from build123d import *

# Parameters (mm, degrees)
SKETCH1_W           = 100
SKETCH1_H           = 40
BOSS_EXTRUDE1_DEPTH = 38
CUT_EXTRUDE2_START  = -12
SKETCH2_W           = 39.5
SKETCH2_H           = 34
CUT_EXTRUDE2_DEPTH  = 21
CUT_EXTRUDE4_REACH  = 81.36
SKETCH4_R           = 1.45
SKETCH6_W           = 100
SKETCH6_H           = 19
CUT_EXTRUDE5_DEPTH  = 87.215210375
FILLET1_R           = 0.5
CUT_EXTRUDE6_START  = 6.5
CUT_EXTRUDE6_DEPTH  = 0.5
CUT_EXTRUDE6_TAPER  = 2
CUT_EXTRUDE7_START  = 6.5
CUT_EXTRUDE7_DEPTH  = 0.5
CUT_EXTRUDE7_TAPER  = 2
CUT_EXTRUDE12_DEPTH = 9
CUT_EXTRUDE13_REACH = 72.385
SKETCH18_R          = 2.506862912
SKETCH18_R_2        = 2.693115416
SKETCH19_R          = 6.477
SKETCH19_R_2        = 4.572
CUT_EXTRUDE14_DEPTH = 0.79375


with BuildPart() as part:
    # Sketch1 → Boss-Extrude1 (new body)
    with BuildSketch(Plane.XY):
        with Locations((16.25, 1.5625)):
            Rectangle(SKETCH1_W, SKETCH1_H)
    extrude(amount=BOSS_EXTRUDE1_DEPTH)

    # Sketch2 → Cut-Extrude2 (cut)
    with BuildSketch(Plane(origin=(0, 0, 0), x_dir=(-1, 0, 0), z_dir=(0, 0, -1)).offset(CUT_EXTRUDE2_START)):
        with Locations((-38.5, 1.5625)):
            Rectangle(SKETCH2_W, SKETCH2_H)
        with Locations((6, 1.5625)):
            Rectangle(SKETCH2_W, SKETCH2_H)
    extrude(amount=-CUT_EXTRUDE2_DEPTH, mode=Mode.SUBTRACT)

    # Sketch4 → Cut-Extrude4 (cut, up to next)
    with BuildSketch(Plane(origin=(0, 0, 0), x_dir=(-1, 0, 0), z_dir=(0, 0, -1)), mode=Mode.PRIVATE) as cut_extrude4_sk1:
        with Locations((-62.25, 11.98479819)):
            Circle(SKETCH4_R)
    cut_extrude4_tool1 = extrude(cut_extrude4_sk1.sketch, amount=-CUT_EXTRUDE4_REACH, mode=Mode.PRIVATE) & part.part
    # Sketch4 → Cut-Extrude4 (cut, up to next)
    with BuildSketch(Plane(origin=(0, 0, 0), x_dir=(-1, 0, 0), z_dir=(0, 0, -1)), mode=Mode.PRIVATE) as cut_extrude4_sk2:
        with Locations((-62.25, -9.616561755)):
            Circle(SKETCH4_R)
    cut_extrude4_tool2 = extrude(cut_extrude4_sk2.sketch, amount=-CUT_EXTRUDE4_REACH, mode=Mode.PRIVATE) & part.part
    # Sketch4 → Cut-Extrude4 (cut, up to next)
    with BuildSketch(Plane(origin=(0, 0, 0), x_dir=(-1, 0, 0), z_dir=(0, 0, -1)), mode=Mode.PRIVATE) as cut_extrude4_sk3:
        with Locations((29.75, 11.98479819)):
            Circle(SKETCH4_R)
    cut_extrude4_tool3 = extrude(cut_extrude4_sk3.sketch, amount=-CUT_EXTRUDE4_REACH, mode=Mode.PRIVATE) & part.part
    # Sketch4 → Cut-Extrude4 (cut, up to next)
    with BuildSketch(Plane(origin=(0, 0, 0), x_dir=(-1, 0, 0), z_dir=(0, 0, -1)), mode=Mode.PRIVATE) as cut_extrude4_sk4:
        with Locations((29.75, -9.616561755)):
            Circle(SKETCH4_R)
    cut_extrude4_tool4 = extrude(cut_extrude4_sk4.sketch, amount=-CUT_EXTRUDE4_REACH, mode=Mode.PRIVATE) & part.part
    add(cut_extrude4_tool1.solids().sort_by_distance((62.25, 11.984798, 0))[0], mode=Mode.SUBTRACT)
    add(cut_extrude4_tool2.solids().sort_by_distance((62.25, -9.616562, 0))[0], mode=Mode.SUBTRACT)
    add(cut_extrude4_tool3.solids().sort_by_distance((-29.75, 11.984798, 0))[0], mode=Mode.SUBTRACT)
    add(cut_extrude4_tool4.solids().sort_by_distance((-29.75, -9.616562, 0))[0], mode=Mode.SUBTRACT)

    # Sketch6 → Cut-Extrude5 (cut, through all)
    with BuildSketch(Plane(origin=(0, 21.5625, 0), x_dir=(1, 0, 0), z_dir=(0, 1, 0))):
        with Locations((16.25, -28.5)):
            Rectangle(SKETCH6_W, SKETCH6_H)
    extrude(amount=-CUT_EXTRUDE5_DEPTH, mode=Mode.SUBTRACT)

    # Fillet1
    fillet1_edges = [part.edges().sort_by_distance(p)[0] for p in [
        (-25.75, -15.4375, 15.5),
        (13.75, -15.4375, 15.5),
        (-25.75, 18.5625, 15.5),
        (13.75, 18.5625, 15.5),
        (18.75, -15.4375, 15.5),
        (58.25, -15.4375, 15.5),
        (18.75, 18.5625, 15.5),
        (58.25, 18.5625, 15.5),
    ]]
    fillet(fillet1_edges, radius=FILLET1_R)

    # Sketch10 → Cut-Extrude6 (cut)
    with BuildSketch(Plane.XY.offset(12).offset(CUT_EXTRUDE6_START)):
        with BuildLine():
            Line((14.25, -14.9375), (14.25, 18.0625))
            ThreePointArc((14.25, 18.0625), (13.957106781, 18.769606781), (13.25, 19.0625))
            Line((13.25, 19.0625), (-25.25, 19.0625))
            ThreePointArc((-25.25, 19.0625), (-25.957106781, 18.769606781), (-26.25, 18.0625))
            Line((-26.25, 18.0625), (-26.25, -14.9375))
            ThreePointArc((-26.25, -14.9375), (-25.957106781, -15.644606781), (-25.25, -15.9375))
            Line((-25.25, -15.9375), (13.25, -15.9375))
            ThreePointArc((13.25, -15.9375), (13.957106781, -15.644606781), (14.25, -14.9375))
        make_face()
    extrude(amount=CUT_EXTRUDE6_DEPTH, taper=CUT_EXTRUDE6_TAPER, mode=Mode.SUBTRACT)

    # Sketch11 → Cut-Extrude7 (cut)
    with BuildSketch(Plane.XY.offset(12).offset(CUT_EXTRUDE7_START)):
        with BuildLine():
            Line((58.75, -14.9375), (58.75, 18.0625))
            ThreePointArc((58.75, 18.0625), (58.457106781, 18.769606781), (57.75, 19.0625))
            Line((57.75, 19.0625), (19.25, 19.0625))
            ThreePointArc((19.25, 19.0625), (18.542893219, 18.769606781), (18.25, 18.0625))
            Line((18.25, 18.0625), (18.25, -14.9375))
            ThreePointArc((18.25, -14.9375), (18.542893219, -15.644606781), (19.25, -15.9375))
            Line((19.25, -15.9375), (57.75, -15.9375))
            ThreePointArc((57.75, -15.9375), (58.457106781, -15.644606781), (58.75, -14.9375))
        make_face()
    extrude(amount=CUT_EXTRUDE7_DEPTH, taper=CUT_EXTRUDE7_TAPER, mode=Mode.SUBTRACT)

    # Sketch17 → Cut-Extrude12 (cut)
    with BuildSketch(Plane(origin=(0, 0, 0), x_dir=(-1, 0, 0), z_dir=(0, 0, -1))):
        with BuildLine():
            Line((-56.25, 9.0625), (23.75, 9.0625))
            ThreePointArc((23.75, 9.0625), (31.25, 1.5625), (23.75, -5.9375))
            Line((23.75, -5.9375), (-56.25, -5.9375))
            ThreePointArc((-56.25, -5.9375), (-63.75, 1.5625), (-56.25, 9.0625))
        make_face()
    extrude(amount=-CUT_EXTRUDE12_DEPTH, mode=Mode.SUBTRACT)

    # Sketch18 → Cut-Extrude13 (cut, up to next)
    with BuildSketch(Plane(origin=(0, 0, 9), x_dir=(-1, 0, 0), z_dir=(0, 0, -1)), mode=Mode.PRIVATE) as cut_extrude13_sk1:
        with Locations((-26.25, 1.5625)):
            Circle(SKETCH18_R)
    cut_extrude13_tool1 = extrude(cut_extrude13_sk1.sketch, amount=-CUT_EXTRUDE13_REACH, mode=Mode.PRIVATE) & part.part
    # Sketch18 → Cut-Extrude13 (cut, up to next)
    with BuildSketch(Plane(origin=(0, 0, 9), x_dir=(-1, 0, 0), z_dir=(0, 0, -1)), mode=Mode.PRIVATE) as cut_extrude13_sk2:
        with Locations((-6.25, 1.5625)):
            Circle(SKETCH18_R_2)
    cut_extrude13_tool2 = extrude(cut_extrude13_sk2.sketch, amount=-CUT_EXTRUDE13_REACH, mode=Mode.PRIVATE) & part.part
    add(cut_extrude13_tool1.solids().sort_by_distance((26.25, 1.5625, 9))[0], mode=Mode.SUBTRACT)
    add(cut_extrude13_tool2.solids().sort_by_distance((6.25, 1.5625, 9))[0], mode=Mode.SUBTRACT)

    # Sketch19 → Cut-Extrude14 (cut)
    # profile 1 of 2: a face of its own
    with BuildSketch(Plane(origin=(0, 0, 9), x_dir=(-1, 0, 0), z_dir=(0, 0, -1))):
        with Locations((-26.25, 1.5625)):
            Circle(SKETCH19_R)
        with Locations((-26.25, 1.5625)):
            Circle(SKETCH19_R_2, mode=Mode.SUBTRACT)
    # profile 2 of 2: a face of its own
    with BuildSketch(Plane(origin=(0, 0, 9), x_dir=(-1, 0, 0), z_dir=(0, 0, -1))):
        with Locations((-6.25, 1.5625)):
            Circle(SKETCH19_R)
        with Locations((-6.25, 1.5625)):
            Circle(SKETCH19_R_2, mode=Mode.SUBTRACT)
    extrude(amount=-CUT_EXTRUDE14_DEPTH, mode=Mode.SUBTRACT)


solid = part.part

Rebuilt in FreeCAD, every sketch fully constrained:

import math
import FreeCAD as App
import Part
import Sketcher
from FreeCAD import Vector
Q = App.Units.Quantity


def edges_at(feature, points):
    """Names of the edges that pass closest to the given points."""
    edges = feature.Shape.Edges
    near = lambda p: min(range(len(edges)), key=lambda i: edges[i].distToShape(Part.Vertex(*p))[0])
    return sorted({f"Edge{near(p) + 1}" for p in points})


def add_polygon(sketch, points):
    """Adds a closed chain of lines whose ends are joined by coincident constraints."""
    first, n = sketch.GeometryCount, len(points)
    for a, b in zip(points, points[1:] + points[:1]):
        sketch.addGeometry(Part.LineSegment(App.Vector(*a, 0), App.Vector(*b, 0)), False)
    for i in range(n):
        sketch.addConstraint(Sketcher.Constraint("Coincident", first + i, 2, first + (i + 1) % n, 1))

doc = App.newDocument("Part")
params = doc.addObject("Spreadsheet::Sheet", "Params")
for row, (alias, value) in enumerate([
    ("sketch1_width", "100 mm"),
    ("sketch1_height", "40 mm"),
    ("pad1_length", "38 mm"),
    ("sketch2_height", "34 mm"),
    ("sketch2_width", "39.5 mm"),
    ("pocket1_length", "21 mm"),
    ("sketch3_diameter", "2.9 mm"),
    ("sketch4_diameter", "2.9 mm"),
    ("sketch5_diameter", "2.9 mm"),
    ("sketch6_diameter", "2.9 mm"),
    ("sketch7_width", "100 mm"),
    ("sketch7_height", "19 mm"),
    ("fillet_radius", "0.5 mm"),
    ("sketch8_radius", "1 mm"),
    ("sketch8_height", "33 mm"),
    ("sketch8_width", "38.5 mm"),
    ("pocket7_length", "0.5 mm"),
    ("pocket7_taper", "-2 deg"),
    ("sketch9_radius", "1 mm"),
    ("sketch9_height", "33 mm"),
    ("sketch9_width", "38.5 mm"),
    ("pocket8_length", "0.5 mm"),
    ("pocket8_taper", "-2 deg"),
    ("sketch10_radius", "7.5 mm"),
    ("sketch10_width", "80 mm"),
    ("pocket9_length", "9 mm"),
    ("pocket12_length", "0.79375 mm"),
], start=1):
    params.set(f"A{row}", alias)
    params.set(f"B{row}", "=" + value)
    params.setAlias(f"B{row}", alias)

body = doc.addObject("PartDesign::Body", "Body")

# Sketch on XY plane
sketch1 = body.newObject("Sketcher::SketchObject", "Sketch")
sketch1.AttachmentSupport = (doc.getObject("XY_Plane"), [""])
sketch1.MapMode = "FlatFace"
add_polygon(sketch1, [(-34, 22), (-34, -18), (66, -18), (66, 22)])  # lines 0-3
sketch1.addConstraint([
    Sketcher.Constraint("Vertical", 0),
    Sketcher.Constraint("Horizontal", 1),
    Sketcher.Constraint("Vertical", 2),
    Sketcher.Constraint("Horizontal", 3),
    Sketcher.Constraint("DistanceX", 1, 1, 1, 2, Q("100 mm")),
    Sketcher.Constraint("DistanceY", 0, 2, 0, 1, Q("40 mm")),
    Sketcher.Constraint("DistanceX", 0, 2, -1, 1, Q("33.75 mm")),
    Sketcher.Constraint("DistanceY", 0, 2, -1, 1, Q("18.4375 mm")),
])
sketch1.setExpression("Constraints[8]", "Params.sketch1_width")
sketch1.setExpression("Constraints[9]", "Params.sketch1_height")
pad1 = body.newObject("PartDesign::Pad", "Pad")
pad1.Profile = sketch1
pad1.setExpression("Length", "Params.pad1_length")

# Sketch on XY plane
sketch2 = body.newObject("Sketcher::SketchObject", "Sketch001")
sketch2.AttachmentSupport = (doc.getObject("XY_Plane"), [""])
sketch2.MapMode = "FlatFace"
sketch2.AttachmentOffset = App.Placement(Vector(0, 0, 12), App.Rotation())
add_polygon(sketch2, [(58, 19), (58, -15), (19, -15), (19, 19)])  # lines 0-3
add_polygon(sketch2, [(14, 19), (14, -15), (-26, -15), (-26, 19)])  # lines 4-7
sketch2.addConstraint([
    Sketcher.Constraint("Vertical", 0),
    Sketcher.Constraint("Horizontal", 1),
    Sketcher.Constraint("Vertical", 2),
    Sketcher.Constraint("Horizontal", 3),
    Sketcher.Constraint("Vertical", 4),
    Sketcher.Constraint("Horizontal", 5),
    Sketcher.Constraint("Vertical", 6),
    Sketcher.Constraint("Horizontal", 7),
    Sketcher.Constraint("Horizontal", 1, 2, 4, 2),
    Sketcher.Constraint("Horizontal", 3, 2, 6, 2),
    Sketcher.Constraint("Equal", 3, 5),
    Sketcher.Constraint("DistanceY", 0, 2, 0, 1, Q("34 mm")),
    Sketcher.Constraint("DistanceX", 1, 2, 1, 1, Q("39.5 mm")),
    Sketcher.Constraint("DistanceX", 4, 2, 1, 2, Q("5 mm")),
    Sketcher.Constraint("DistanceX", -1, 1, 0, 2, Q("58.25 mm")),
    Sketcher.Constraint("DistanceY", 0, 2, -1, 1, Q("15.4375 mm")),
])
sketch2.setExpression("Constraints[19]", "Params.sketch2_height")
sketch2.setExpression("Constraints[20]", "Params.sketch2_width")
pocket1 = body.newObject("PartDesign::Pocket", "Pocket")
pocket1.Profile = sketch2
pocket1.setExpression("Length", "Params.pocket1_length")
pocket1.Reversed = True

# Sketch on XY plane
sketch3 = body.newObject("Sketcher::SketchObject", "Sketch002")
sketch3.AttachmentSupport = (doc.getObject("XY_Plane"), [""])
sketch3.MapMode = "FlatFace"
sketch3.addGeometry(Part.Circle(Vector(62.2, 12, 0), Vector(0, 0, 1), 1.4), False)
sketch3.addConstraint([
    Sketcher.Constraint("Diameter", 0, Q("2.9 mm")),
    Sketcher.Constraint("DistanceX", -1, 1, 0, 3, Q("62.25 mm")),
    Sketcher.Constraint("DistanceY", -1, 1, 0, 3, Q("11.984798 mm")),
])
sketch3.setExpression("Constraints[0]", "Params.sketch3_diameter")
pocket2 = body.newObject("PartDesign::Pocket", "Pocket001")
pocket2.Profile = sketch3
pocket2.Type = "UpToFirst"
pocket2.Reversed = True

# Sketch on XY plane
sketch4 = body.newObject("Sketcher::SketchObject", "Sketch003")
sketch4.AttachmentSupport = (doc.getObject("XY_Plane"), [""])
sketch4.MapMode = "FlatFace"
sketch4.addGeometry(Part.Circle(Vector(62.2, -9.6, 0), Vector(0, 0, 1), 1.4), False)
sketch4.addConstraint([
    Sketcher.Constraint("Diameter", 0, Q("2.9 mm")),
    Sketcher.Constraint("DistanceX", -1, 1, 0, 3, Q("62.25 mm")),
    Sketcher.Constraint("DistanceY", 0, 3, -1, 1, Q("9.616562 mm")),
])
sketch4.setExpression("Constraints[0]", "Params.sketch4_diameter")
pocket3 = body.newObject("PartDesign::Pocket", "Pocket002")
pocket3.Profile = sketch4
pocket3.Type = "UpToFirst"
pocket3.Reversed = True

# Sketch on XY plane
sketch5 = body.newObject("Sketcher::SketchObject", "Sketch004")
sketch5.AttachmentSupport = (doc.getObject("XY_Plane"), [""])
sketch5.MapMode = "FlatFace"
sketch5.addGeometry(Part.Circle(Vector(-29.8, 12, 0), Vector(0, 0, 1), 1.4), False)
sketch5.addConstraint([
    Sketcher.Constraint("Diameter", 0, Q("2.9 mm")),
    Sketcher.Constraint("DistanceX", 0, 3, -1, 1, Q("29.75 mm")),
    Sketcher.Constraint("DistanceY", -1, 1, 0, 3, Q("11.984798 mm")),
])
sketch5.setExpression("Constraints[0]", "Params.sketch5_diameter")
pocket4 = body.newObject("PartDesign::Pocket", "Pocket003")
pocket4.Profile = sketch5
pocket4.Type = "UpToFirst"
pocket4.Reversed = True

# Sketch on XY plane
sketch6 = body.newObject("Sketcher::SketchObject", "Sketch005")
sketch6.AttachmentSupport = (doc.getObject("XY_Plane"), [""])
sketch6.MapMode = "FlatFace"
sketch6.addGeometry(Part.Circle(Vector(-29.8, -9.6, 0), Vector(0, 0, 1), 1.4), False)
sketch6.addConstraint([
    Sketcher.Constraint("Diameter", 0, Q("2.9 mm")),
    Sketcher.Constraint("DistanceX", 0, 3, -1, 1, Q("29.75 mm")),
    Sketcher.Constraint("DistanceY", 0, 3, -1, 1, Q("9.616562 mm")),
])
sketch6.setExpression("Constraints[0]", "Params.sketch6_diameter")
pocket5 = body.newObject("PartDesign::Pocket", "Pocket004")
pocket5.Profile = sketch6
pocket5.Type = "UpToFirst"
pocket5.Reversed = True

# Sketch on XZ plane
sketch7 = body.newObject("Sketcher::SketchObject", "Sketch006")
sketch7.AttachmentSupport = (doc.getObject("XZ_Plane"), [""])
sketch7.MapMode = "FlatFace"
sketch7.AttachmentOffset = App.Placement(Vector(0, 0, -21.5625), App.Rotation())
add_polygon(sketch7, [(-34, 19), (-34, 38), (66, 38), (66, 19)])  # lines 0-3
sketch7.addConstraint([
    Sketcher.Constraint("Vertical", 0),
    Sketcher.Constraint("Horizontal", 1),
    Sketcher.Constraint("Vertical", 2),
    Sketcher.Constraint("Horizontal", 3),
    Sketcher.Constraint("DistanceX", 1, 1, 1, 2, Q("100 mm")),
    Sketcher.Constraint("DistanceY", 0, 1, 0, 2, Q("19 mm")),
    Sketcher.Constraint("DistanceY", -1, 1, 0, 2, Q("38 mm")),
    Sketcher.Constraint("DistanceX", 0, 2, -1, 1, Q("33.75 mm")),
])
sketch7.setExpression("Constraints[8]", "Params.sketch7_width")
sketch7.setExpression("Constraints[9]", "Params.sketch7_height")
pocket6 = body.newObject("PartDesign::Pocket", "Pocket005")
pocket6.Profile = sketch7
pocket6.Type = "ThroughAll"
pocket6.Reversed = True
doc.recompute()

fillet = body.newObject("PartDesign::Fillet", "Fillet")
fillet.Base = (pocket6, edges_at(pocket6, [
    (-25.75, -15.438, 15.5),
    (13.75, -15.438, 15.5),
    (-25.75, 18.562, 15.5),
    (13.75, 18.562, 15.5),
    (18.75, -15.438, 15.5),
    (58.25, -15.438, 15.5),
    (18.75, 18.562, 15.5),
    (58.25, 18.562, 15.5),
]))
fillet.setExpression("Radius", "Params.fillet_radius")

# Sketch on XY plane
sketch8 = body.newObject("Sketcher::SketchObject", "Sketch007")
sketch8.AttachmentSupport = (doc.getObject("XY_Plane"), [""])
sketch8.MapMode = "FlatFace"
sketch8.AttachmentOffset = App.Placement(Vector(0, 0, 18.5), App.Rotation())
sketch8.addGeometry([
    Part.LineSegment(Vector(14.2, -14.9, 0), Vector(14.2, 18.1, 0)),  # 0
    Part.ArcOfCircle(Part.Circle(Vector(13.2, 18.1, 0), Vector(0, 0, 1), 1), math.radians(0), math.radians(90)),  # 1
    Part.LineSegment(Vector(13.2, 19.1, 0), Vector(-25.2, 19.1, 0)),  # 2
    Part.ArcOfCircle(Part.Circle(Vector(-25.2, 18.1, 0), Vector(0, 0, 1), 1), math.radians(90), math.radians(180)),  # 3
    Part.LineSegment(Vector(-26.2, 18.1, 0), Vector(-26.2, -14.9, 0)),  # 4
    Part.ArcOfCircle(Part.Circle(Vector(-25.2, -14.9, 0), Vector(0, 0, 1), 1), math.radians(-180), math.radians(-90)),  # 5
    Part.LineSegment(Vector(-25.2, -15.9, 0), Vector(13.2, -15.9, 0)),  # 6
    Part.ArcOfCircle(Part.Circle(Vector(13.2, -14.9, 0), Vector(0, 0, 1), 1), math.radians(-90), math.radians(0)),  # 7
], False)
sketch8.addConstraint([
    Sketcher.Constraint("Tangent", 0, 2, 1, 1),
    Sketcher.Constraint("Tangent", 1, 2, 2, 1),
    Sketcher.Constraint("Tangent", 2, 2, 3, 1),
    Sketcher.Constraint("Tangent", 3, 2, 4, 1),
    Sketcher.Constraint("Tangent", 4, 2, 5, 1),
    Sketcher.Constraint("Tangent", 5, 2, 6, 1),
    Sketcher.Constraint("Tangent", 6, 2, 7, 1),
    Sketcher.Constraint("Tangent", 7, 2, 0, 1),
    Sketcher.Constraint("Vertical", 0),
    Sketcher.Constraint("Horizontal", 2),
    Sketcher.Constraint("Vertical", 4),
    Sketcher.Constraint("Horizontal", 6),
    Sketcher.Constraint("Equal", 1, 3),
    Sketcher.Constraint("Equal", 3, 5),
    Sketcher.Constraint("Equal", 5, 7),
    Sketcher.Constraint("Radius", 1, Q("1 mm")),
    Sketcher.Constraint("DistanceY", 0, 1, 0, 2, Q("33 mm")),
    Sketcher.Constraint("DistanceX", 2, 2, 2, 1, Q("38.5 mm")),
    Sketcher.Constraint("DistanceX", -1, 1, 1, 3, Q("13.25 mm")),
    Sketcher.Constraint("DistanceY", -1, 1, 1, 3, Q("18.0625 mm")),
])
sketch8.setExpression("Constraints[15]", "Params.sketch8_radius")
sketch8.setExpression("Constraints[16]", "Params.sketch8_height")
sketch8.setExpression("Constraints[17]", "Params.sketch8_width")
pocket7 = body.newObject("PartDesign::Pocket", "Pocket006")
pocket7.Profile = sketch8
pocket7.setExpression("Length", "Params.pocket7_length")
pocket7.Reversed = True
pocket7.setExpression("TaperAngle", "Params.pocket7_taper")

# Sketch on XY plane
sketch9 = body.newObject("Sketcher::SketchObject", "Sketch008")
sketch9.AttachmentSupport = (doc.getObject("XY_Plane"), [""])
sketch9.MapMode = "FlatFace"
sketch9.AttachmentOffset = App.Placement(Vector(0, 0, 18.5), App.Rotation())
sketch9.addGeometry([
    Part.LineSegment(Vector(58.8, -14.9, 0), Vector(58.8, 18.1, 0)),  # 0
    Part.ArcOfCircle(Part.Circle(Vector(57.7, 18.1, 0), Vector(0, 0, 1), 1), math.radians(0), math.radians(90)),  # 1
    Part.LineSegment(Vector(57.8, 19.1, 0), Vector(19.2, 19.1, 0)),  # 2
    Part.ArcOfCircle(Part.Circle(Vector(19.3, 18.1, 0), Vector(0, 0, 1), 1), math.radians(90), math.radians(180)),  # 3
    Part.LineSegment(Vector(18.2, 18.1, 0), Vector(18.2, -14.9, 0)),  # 4
    Part.ArcOfCircle(Part.Circle(Vector(19.3, -14.9, 0), Vector(0, 0, 1), 1), math.radians(-180), math.radians(-90)),  # 5
    Part.LineSegment(Vector(19.2, -15.9, 0), Vector(57.8, -15.9, 0)),  # 6
    Part.ArcOfCircle(Part.Circle(Vector(57.7, -14.9, 0), Vector(0, 0, 1), 1), math.radians(-90), math.radians(0)),  # 7
], False)
sketch9.addConstraint([
    Sketcher.Constraint("Tangent", 0, 2, 1, 1),
    Sketcher.Constraint("Tangent", 1, 2, 2, 1),
    Sketcher.Constraint("Tangent", 2, 2, 3, 1),
    Sketcher.Constraint("Tangent", 3, 2, 4, 1),
    Sketcher.Constraint("Tangent", 4, 2, 5, 1),
    Sketcher.Constraint("Tangent", 5, 2, 6, 1),
    Sketcher.Constraint("Tangent", 6, 2, 7, 1),
    Sketcher.Constraint("Tangent", 7, 2, 0, 1),
    Sketcher.Constraint("Vertical", 0),
    Sketcher.Constraint("Horizontal", 2),
    Sketcher.Constraint("Vertical", 4),
    Sketcher.Constraint("Horizontal", 6),
    Sketcher.Constraint("Equal", 1, 3),
    Sketcher.Constraint("Equal", 3, 5),
    Sketcher.Constraint("Equal", 5, 7),
    Sketcher.Constraint("Radius", 1, Q("1 mm")),
    Sketcher.Constraint("DistanceY", 0, 1, 0, 2, Q("33 mm")),
    Sketcher.Constraint("DistanceX", 2, 2, 2, 1, Q("38.5 mm")),
    Sketcher.Constraint("DistanceX", -1, 1, 1, 3, Q("57.75 mm")),
    Sketcher.Constraint("DistanceY", -1, 1, 1, 3, Q("18.0625 mm")),
])
sketch9.setExpression("Constraints[15]", "Params.sketch9_radius")
sketch9.setExpression("Constraints[16]", "Params.sketch9_height")
sketch9.setExpression("Constraints[17]", "Params.sketch9_width")
pocket8 = body.newObject("PartDesign::Pocket", "Pocket007")
pocket8.Profile = sketch9
pocket8.setExpression("Length", "Params.pocket8_length")
pocket8.Reversed = True
pocket8.setExpression("TaperAngle", "Params.pocket8_taper")

# Sketch on XY plane
sketch10 = body.newObject("Sketcher::SketchObject", "Sketch009")
sketch10.AttachmentSupport = (doc.getObject("XY_Plane"), [""])
sketch10.MapMode = "FlatFace"
sketch10.addGeometry([
    Part.LineSegment(Vector(-24, 9, 0), Vector(56, 9, 0)),
    Part.ArcOfCircle(Part.Circle(Vector(56, 2, 0), Vector(0, 0, 1), 8), math.radians(-90), math.radians(90)),
    Part.LineSegment(Vector(56, -6, 0), Vector(-24, -6, 0)),
    Part.ArcOfCircle(Part.Circle(Vector(-24, 2, 0), Vector(0, 0, 1), 8), math.radians(90), math.radians(270)),
], False)
sketch10.addConstraint([
    Sketcher.Constraint("Tangent", 0, 2, 1, 2),
    Sketcher.Constraint("Tangent", 1, 1, 2, 1),
    Sketcher.Constraint("Tangent", 2, 2, 3, 2),
    Sketcher.Constraint("Tangent", 3, 1, 0, 1),
    Sketcher.Constraint("Horizontal", 0),
    Sketcher.Constraint("Horizontal", 2),
    Sketcher.Constraint("Radius", 1, Q("7.5 mm")),
    Sketcher.Constraint("DistanceX", 0, 1, 0, 2, Q("80 mm")),
    Sketcher.Constraint("DistanceX", -1, 1, 1, 3, Q("56.25 mm")),
    Sketcher.Constraint("DistanceY", -1, 1, 1, 3, Q("1.5625 mm")),
])
sketch10.setExpression("Constraints[6]", "Params.sketch10_radius")
sketch10.setExpression("Constraints[7]", "Params.sketch10_width")
pocket9 = body.newObject("PartDesign::Pocket", "Pocket008")
pocket9.Profile = sketch10
pocket9.setExpression("Length", "Params.pocket9_length")
pocket9.Reversed = True

# Sketch on XY plane
sketch11 = body.newObject("Sketcher::SketchObject", "Sketch010")
sketch11.AttachmentSupport = (doc.getObject("XY_Plane"), [""])
sketch11.MapMode = "FlatFace"
sketch11.AttachmentOffset = App.Placement(Vector(0, 0, 9), App.Rotation())
sketch11.addGeometry(Part.Circle(Vector(26.2, 1.6, 0), Vector(0, 0, 1), 2.5), False)
sketch11.addConstraint([
    Sketcher.Constraint("DistanceX", -1, 1, 0, 3, Q("26.25 mm")),
    Sketcher.Constraint("Diameter", 0, Q("5.013726 mm")),
    Sketcher.Constraint("DistanceY", -1, 1, 0, 3, Q("1.5625 mm")),
])
pocket10 = body.newObject("PartDesign::Pocket", "Pocket009")
pocket10.Profile = sketch11
pocket10.Type = "UpToFirst"
pocket10.Reversed = True

# Sketch on XY plane
sketch12 = body.newObject("Sketcher::SketchObject", "Sketch011")
sketch12.AttachmentSupport = (doc.getObject("XY_Plane"), [""])
sketch12.MapMode = "FlatFace"
sketch12.AttachmentOffset = App.Placement(Vector(0, 0, 9), App.Rotation())
sketch12.addGeometry(Part.Circle(Vector(6.2, 1.6, 0), Vector(0, 0, 1), 2.7), False)
sketch12.addConstraint([
    Sketcher.Constraint("Diameter", 0, Q("5.386231 mm")),
    Sketcher.Constraint("DistanceX", -1, 1, 0, 3, Q("6.25 mm")),
    Sketcher.Constraint("DistanceY", -1, 1, 0, 3, Q("1.5625 mm")),
])
pocket11 = body.newObject("PartDesign::Pocket", "Pocket010")
pocket11.Profile = sketch12
pocket11.Type = "UpToFirst"
pocket11.Reversed = True

# Sketch on XY plane
sketch13 = body.newObject("Sketcher::SketchObject", "Sketch012")
sketch13.AttachmentSupport = (doc.getObject("XY_Plane"), [""])
sketch13.MapMode = "FlatFace"
sketch13.AttachmentOffset = App.Placement(Vector(0, 0, 9), App.Rotation())
sketch13.addGeometry([
    Part.Circle(Vector(26.2, 1.6, 0), Vector(0, 0, 1), 6.5),
    Part.Circle(Vector(26.2, 1.6, 0), Vector(0, 0, 1), 4.6),
    Part.Circle(Vector(6.2, 1.6, 0), Vector(0, 0, 1), 6.5),
    Part.Circle(Vector(6.2, 1.6, 0), Vector(0, 0, 1), 4.6),
], False)
sketch13.addConstraint([
    Sketcher.Constraint("Coincident", 1, 3, 0, 3),
    Sketcher.Constraint("Coincident", 3, 3, 2, 3),
    Sketcher.Constraint("Equal", 0, 2),
    Sketcher.Constraint("Equal", 1, 3),
    Sketcher.Constraint("Horizontal", 1, 3, 2, 3),
    Sketcher.Constraint("Diameter", 0, Q("12.954 mm")),
    Sketcher.Constraint("Diameter", 1, Q("9.144 mm")),
    Sketcher.Constraint("DistanceX", 2, 3, 0, 3, Q("20 mm")),
    Sketcher.Constraint("DistanceX", -1, 1, 0, 3, Q("26.25 mm")),
    Sketcher.Constraint("DistanceY", -1, 1, 0, 3, Q("1.5625 mm")),
])
pocket12 = body.newObject("PartDesign::Pocket", "Pocket011")
pocket12.Profile = sketch13
pocket12.setExpression("Length", "Params.pocket12_length")
pocket12.Reversed = True

doc.recompute()
